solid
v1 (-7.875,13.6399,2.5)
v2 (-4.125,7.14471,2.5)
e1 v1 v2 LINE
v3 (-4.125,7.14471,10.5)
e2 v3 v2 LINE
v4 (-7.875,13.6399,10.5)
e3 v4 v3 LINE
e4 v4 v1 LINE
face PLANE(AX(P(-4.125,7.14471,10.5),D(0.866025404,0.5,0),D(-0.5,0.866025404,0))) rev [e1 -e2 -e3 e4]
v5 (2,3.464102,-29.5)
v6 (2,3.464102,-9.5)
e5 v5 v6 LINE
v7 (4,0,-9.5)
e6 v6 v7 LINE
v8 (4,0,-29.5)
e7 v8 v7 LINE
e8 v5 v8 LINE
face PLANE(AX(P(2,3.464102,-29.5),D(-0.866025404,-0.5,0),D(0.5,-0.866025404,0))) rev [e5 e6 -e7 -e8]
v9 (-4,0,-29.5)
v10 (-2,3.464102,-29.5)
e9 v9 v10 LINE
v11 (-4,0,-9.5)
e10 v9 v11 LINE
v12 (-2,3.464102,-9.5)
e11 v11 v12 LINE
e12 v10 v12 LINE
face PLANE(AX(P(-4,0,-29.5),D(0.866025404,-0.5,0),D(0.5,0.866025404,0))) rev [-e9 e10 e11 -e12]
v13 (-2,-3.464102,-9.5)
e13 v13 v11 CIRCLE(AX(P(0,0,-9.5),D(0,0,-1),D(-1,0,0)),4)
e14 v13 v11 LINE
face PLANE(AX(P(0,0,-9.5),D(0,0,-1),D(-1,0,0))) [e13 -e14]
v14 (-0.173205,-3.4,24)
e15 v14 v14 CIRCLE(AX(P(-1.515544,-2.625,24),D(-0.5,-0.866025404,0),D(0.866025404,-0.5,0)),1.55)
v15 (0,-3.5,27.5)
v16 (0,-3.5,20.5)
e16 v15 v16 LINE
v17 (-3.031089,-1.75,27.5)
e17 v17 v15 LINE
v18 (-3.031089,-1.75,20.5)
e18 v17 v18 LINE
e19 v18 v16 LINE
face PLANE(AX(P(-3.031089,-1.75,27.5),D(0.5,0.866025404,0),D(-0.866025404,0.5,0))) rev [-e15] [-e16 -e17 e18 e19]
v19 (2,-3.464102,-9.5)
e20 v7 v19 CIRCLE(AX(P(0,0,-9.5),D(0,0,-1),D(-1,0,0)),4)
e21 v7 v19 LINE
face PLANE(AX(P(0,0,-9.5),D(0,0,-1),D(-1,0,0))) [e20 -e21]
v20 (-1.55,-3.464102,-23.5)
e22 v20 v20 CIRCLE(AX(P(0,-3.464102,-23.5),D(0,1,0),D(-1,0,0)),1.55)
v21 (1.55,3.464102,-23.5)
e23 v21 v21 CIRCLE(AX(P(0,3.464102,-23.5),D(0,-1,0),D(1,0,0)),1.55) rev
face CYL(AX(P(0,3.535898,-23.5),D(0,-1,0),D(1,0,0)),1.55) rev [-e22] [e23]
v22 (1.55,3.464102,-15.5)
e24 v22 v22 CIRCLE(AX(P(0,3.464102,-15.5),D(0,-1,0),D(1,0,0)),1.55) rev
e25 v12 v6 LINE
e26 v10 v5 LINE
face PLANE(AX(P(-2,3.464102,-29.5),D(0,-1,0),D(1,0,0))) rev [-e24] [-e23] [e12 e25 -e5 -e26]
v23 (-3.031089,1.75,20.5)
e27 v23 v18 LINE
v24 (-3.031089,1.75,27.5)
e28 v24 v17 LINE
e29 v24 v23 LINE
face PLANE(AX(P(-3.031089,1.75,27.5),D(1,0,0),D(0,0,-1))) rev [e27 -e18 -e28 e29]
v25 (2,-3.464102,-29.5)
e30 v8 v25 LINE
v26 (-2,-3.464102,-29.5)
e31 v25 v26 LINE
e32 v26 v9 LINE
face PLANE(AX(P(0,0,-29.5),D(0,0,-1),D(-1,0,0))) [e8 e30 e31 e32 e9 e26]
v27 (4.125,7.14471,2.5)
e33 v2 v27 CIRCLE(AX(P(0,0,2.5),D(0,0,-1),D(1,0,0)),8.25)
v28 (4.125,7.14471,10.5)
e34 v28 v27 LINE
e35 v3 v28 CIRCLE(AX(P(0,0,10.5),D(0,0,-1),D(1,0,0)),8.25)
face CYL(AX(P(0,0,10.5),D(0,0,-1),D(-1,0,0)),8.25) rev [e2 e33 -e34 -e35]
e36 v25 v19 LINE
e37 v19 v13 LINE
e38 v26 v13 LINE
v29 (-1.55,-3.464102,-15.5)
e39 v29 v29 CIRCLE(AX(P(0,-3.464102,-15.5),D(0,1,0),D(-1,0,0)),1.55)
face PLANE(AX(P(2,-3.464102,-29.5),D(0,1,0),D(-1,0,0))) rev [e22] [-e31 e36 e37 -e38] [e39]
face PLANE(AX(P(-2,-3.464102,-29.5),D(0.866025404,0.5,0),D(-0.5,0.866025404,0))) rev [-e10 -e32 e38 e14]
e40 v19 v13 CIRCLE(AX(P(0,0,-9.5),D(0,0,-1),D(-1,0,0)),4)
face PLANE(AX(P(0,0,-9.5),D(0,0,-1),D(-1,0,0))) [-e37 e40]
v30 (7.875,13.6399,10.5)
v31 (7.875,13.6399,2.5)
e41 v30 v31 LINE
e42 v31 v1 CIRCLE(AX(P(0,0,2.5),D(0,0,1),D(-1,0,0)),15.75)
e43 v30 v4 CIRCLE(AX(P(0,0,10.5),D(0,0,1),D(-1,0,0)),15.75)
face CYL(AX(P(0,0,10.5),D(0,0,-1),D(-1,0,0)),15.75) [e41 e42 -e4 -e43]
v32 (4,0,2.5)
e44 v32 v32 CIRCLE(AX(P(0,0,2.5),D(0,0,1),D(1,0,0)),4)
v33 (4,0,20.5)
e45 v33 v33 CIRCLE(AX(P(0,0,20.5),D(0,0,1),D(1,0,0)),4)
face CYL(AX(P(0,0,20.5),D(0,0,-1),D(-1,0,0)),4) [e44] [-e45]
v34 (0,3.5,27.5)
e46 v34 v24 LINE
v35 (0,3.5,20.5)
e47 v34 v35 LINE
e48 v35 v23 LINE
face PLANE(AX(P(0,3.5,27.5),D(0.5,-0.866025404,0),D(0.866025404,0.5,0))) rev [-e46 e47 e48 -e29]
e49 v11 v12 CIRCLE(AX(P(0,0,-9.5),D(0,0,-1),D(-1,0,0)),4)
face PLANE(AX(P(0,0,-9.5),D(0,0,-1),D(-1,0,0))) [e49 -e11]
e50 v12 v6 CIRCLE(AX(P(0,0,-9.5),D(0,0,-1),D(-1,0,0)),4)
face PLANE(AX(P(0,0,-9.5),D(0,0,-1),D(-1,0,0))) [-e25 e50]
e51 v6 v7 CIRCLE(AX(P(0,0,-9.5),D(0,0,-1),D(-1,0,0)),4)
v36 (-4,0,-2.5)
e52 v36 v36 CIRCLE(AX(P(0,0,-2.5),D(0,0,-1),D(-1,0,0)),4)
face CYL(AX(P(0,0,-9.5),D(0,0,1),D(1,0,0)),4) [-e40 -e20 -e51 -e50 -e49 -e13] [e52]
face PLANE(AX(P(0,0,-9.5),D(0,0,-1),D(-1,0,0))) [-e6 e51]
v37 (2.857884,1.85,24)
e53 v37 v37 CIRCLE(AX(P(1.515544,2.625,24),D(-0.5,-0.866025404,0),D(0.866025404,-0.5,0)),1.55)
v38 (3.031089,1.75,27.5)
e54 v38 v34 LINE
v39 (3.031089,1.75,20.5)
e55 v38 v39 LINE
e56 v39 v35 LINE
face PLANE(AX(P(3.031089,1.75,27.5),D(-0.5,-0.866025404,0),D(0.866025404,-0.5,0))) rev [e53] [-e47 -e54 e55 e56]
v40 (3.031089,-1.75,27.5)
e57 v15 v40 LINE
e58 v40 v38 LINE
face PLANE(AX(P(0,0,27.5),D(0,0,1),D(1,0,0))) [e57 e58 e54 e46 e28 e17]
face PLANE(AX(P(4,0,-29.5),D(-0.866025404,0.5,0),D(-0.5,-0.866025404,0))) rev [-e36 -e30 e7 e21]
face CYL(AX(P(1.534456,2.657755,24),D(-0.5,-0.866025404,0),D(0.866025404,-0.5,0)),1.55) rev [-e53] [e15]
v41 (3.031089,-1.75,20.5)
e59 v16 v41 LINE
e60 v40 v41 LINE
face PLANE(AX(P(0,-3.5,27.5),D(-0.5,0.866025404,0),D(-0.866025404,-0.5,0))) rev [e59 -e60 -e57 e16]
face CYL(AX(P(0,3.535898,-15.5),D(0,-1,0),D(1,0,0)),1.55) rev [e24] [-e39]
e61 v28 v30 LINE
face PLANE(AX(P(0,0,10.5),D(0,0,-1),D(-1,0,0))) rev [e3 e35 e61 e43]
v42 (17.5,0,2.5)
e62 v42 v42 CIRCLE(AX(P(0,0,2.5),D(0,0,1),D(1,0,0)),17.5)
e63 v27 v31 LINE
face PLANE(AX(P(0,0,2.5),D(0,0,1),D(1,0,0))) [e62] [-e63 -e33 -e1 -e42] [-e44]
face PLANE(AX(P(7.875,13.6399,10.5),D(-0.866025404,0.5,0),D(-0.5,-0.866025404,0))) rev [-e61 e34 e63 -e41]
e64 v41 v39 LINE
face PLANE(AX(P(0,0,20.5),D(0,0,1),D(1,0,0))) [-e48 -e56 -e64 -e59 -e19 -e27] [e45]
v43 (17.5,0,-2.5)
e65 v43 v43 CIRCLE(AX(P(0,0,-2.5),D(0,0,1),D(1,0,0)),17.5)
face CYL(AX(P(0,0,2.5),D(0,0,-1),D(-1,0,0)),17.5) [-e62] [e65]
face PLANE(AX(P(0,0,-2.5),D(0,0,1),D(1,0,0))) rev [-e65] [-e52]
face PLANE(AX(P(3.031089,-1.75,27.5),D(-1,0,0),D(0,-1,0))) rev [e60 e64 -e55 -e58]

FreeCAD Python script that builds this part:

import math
import FreeCAD as App
import Part
import Sketcher
Q = App.Units.Quantity

doc = App.newDocument("Part")
body = doc.addObject("PartDesign::Body", "Body")

sketch1 = body.newObject("Sketcher::SketchObject", "Sketch")
sketch1.AttachmentSupport = (doc.getObject("XY_Plane"), [""])
sketch1.MapMode = "FlatFace"
sketch1.addGeometry(Part.Circle(App.Vector(0, 0, 0), App.Vector(0, 0, 1), 18), False)
sketch1.addConstraint([
    Sketcher.Constraint("Coincident", 0, 3, -1, 1),
    Sketcher.Constraint("Diameter", 0, Q("35 mm")),
])
pad1 = body.newObject("PartDesign::Pad", "Pad")
pad1.Profile = sketch1
pad1.Length = 5
pad1.Midplane = True

sketch2 = body.newObject("Sketcher::SketchObject", "Sketch001")
sketch2.AttachmentSupport = (doc.getObject("XY_Plane"), [""])
sketch2.MapMode = "FlatFace"
sketch2.AttachmentOffset = App.Placement(App.Vector(0, 0, 2.5), App.Rotation())
sketch2.addGeometry([
    Part.LineSegment(App.Vector(4, 7, 0), App.Vector(8, 14, 0)),
    Part.ArcOfCircle(Part.Circle(App.Vector(0, 0, 0), App.Vector(0, 0, 1), 16), math.radians(60), math.radians(120)),
    Part.LineSegment(App.Vector(-8, 14, 0), App.Vector(-4, 7, 0)),
    Part.ArcOfCircle(Part.Circle(App.Vector(0, 0, 0), App.Vector(0, 0, 1), 8), math.radians(60), math.radians(120)),
], False)
sketch2.addConstraint([
    Sketcher.Constraint("Coincident", 0, 2, 1, 1),
    Sketcher.Constraint("Coincident", 1, 2, 2, 1),
    Sketcher.Constraint("Coincident", 2, 2, 3, 2),
    Sketcher.Constraint("Coincident", 3, 1, 0, 1),
    Sketcher.Constraint("Coincident", 1, 3, -1, 1),
    Sketcher.Constraint("Coincident", 3, 3, -1, 1),
    Sketcher.Constraint("Horizontal", 0, 2, 1, 2),
    Sketcher.Constraint("Horizontal", 2, 2, 3, 1),
    Sketcher.Constraint("Angle", 0, Q("60 deg")),
    Sketcher.Constraint("Radius", 1, Q("15.75 mm")),
    Sketcher.Constraint("Radius", 3, Q("8.25 mm")),
    Sketcher.Constraint("DistanceX", 2, 2, 0, 2, Q("12 mm")),
])
pad2 = body.newObject("PartDesign::Pad", "Pad001")
pad2.Profile = sketch2
pad2.Length = 8

sketch3 = body.newObject("Sketcher::SketchObject", "Sketch002")
sketch3.AttachmentSupport = (doc.getObject("XY_Plane"), [""])
sketch3.MapMode = "FlatFace"
sketch3.AttachmentOffset = App.Placement(App.Vector(0, 0, 2.5), App.Rotation())
sketch3.addGeometry(Part.Circle(App.Vector(0, 0, 0), App.Vector(0, 0, 1), 4), False)
sketch3.addConstraint([
    Sketcher.Constraint("Coincident", 0, 3, -1, 1),
    Sketcher.Constraint("Diameter", 0, Q("8 mm")),
])
pad3 = body.newObject("PartDesign::Pad", "Pad002")
pad3.Profile = sketch3
pad3.Length = 18

sketch4 = body.newObject("Sketcher::SketchObject", "Sketch003")
sketch4.AttachmentSupport = (doc.getObject("XY_Plane"), [""])
sketch4.MapMode = "FlatFace"
sketch4.AttachmentOffset = App.Placement(App.Vector(0, 0, -9.5), App.Rotation())
sketch4.addGeometry(Part.Circle(App.Vector(0, 0, 0), App.Vector(0, 0, 1), 4), False)
sketch4.addConstraint([
    Sketcher.Constraint("Coincident", 0, 3, -1, 1),
    Sketcher.Constraint("Diameter", 0, Q("8 mm")),
])
pad4 = body.newObject("PartDesign::Pad", "Pad003")
pad4.Profile = sketch4
pad4.Length = 7

sketch5 = body.newObject("Sketcher::SketchObject", "Sketch004")
sketch5.AttachmentSupport = (doc.getObject("XY_Plane"), [""])
sketch5.MapMode = "FlatFace"
sketch5.AttachmentOffset = App.Placement(App.Vector(0, 0, -9.5), App.Rotation())
sketch5.addGeometry([
    Part.LineSegment(App.Vector(-4, 0, 0), App.Vector(-2, 3.5, 0)),
    Part.LineSegment(App.Vector(-2, 3.5, 0), App.Vector(2, 3.5, 0)),
    Part.LineSegment(App.Vector(2, 3.5, 0), App.Vector(4, 0, 0)),
    Part.LineSegment(App.Vector(4, 0, 0), App.Vector(2, -3.5, 0)),
    Part.LineSegment(App.Vector(2, -3.5, 0), App.Vector(-2, -3.5, 0)),
    Part.LineSegment(App.Vector(-2, -3.5, 0), App.Vector(-4, 0, 0)),
], False)
sketch5.addConstraint([
    Sketcher.Constraint("Coincident", 0, 2, 1, 1),
    Sketcher.Constraint("Coincident", 1, 2, 2, 1),
    Sketcher.Constraint("Coincident", 2, 2, 3, 1),
    Sketcher.Constraint("Coincident", 3, 2, 4, 1),
    Sketcher.Constraint("Coincident", 4, 2, 5, 1),
    Sketcher.Constraint("Coincident", 5, 2, 0, 1),
    Sketcher.Constraint("Horizontal", 1),
    Sketcher.Constraint("Horizontal", 4),
    Sketcher.Constraint("Symmetric", 0, 2, 3, 2, -1, 1),
    Sketcher.Constraint("Symmetric", 2, 2, 5, 2, -1, 1),
    Sketcher.Constraint("PointOnObject", 2, 2, -1),
    Sketcher.Constraint("Parallel", 2, 5),
    Sketcher.Constraint("Vertical", 1, 2, 3, 2),
    Sketcher.Constraint("DistanceX", 1, 1, 1, 2, Q("4 mm")),
    Sketcher.Constraint("Angle", 0, Q("60 deg")),
    Sketcher.Constraint("Distance", 0, Q("4 mm")),
])
pad5 = body.newObject("PartDesign::Pad", "Pad004")
pad5.Profile = sketch5
pad5.Length = 20
pad5.Reversed = True

sketch6 = body.newObject("Sketcher::SketchObject", "Sketch005")
sketch6.AttachmentSupport = (doc.getObject("XZ_Plane"), [""])
sketch6.MapMode = "FlatFace"
sketch6.AttachmentOffset = App.Placement(App.Vector(0, 0, 3.464102), App.Rotation())
sketch6.addGeometry([
    Part.Circle(App.Vector(0, -23.5, 0), App.Vector(0, 0, 1), 1.6),
    Part.Circle(App.Vector(0, -15.5, 0), App.Vector(0, 0, 1), 1.6),
], False)
sketch6.addConstraint([
    Sketcher.Constraint("Equal", 0, 1),
    Sketcher.Constraint("PointOnObject", 0, 3, -2),
    Sketcher.Constraint("PointOnObject", 1, 3, -2),
    Sketcher.Constraint("Diameter", 0, Q("3.1 mm")),
    Sketcher.Constraint("DistanceY", 0, 3, 1, 3, Q("8 mm")),
    Sketcher.Constraint("DistanceY", 0, 3, -1, 1, Q("23.5 mm")),
])
pocket1 = body.newObject("PartDesign::Pocket", "Pocket")
pocket1.Profile = sketch6
pocket1.Length = 7

sketch7 = body.newObject("Sketcher::SketchObject", "Sketch006")
sketch7.AttachmentSupport = (doc.getObject("XY_Plane"), [""])
sketch7.MapMode = "FlatFace"
sketch7.AttachmentOffset = App.Placement(App.Vector(0, 0, 20.5), App.Rotation())
sketch7.addGeometry([
    Part.LineSegment(App.Vector(3, 1.8, 0), App.Vector(0, 3.5, 0)),
    Part.LineSegment(App.Vector(0, 3.5, 0), App.Vector(-3, 1.8, 0)),
    Part.LineSegment(App.Vector(-3, 1.8, 0), App.Vector(-3, -1.8, 0)),
    Part.LineSegment(App.Vector(-3, -1.8, 0), App.Vector(0, -3.5, 0)),
    Part.LineSegment(App.Vector(0, -3.5, 0), App.Vector(3, -1.8, 0)),
    Part.LineSegment(App.Vector(3, -1.8, 0), App.Vector(3, 1.8, 0)),
], False)
sketch7.addConstraint([
    Sketcher.Constraint("Coincident", 0, 2, 1, 1),
    Sketcher.Constraint("Coincident", 1, 2, 2, 1),
    Sketcher.Constraint("Coincident", 2, 2, 3, 1),
    Sketcher.Constraint("Coincident", 3, 2, 4, 1),
    Sketcher.Constraint("Coincident", 4, 2, 5, 1),
    Sketcher.Constraint("Coincident", 5, 2, 0, 1),
    Sketcher.Constraint("Vertical", 2),
    Sketcher.Constraint("Vertical", 5),
    Sketcher.Constraint("Symmetric", 0, 2, 3, 2, -1, 1),
    Sketcher.Constraint("Symmetric", 1, 2, 4, 2, -1, 1),
    Sketcher.Constraint("PointOnObject", 0, 2, -2),
    Sketcher.Constraint("Parallel", 0, 3),
    Sketcher.Constraint("Horizontal", 2, 2, 4, 2),
    Sketcher.Constraint("Angle", 0, Q("150 deg")),
    Sketcher.Constraint("DistanceY", 2, 2, 2, 1, Q("3.5 mm")),
    Sketcher.Constraint("DistanceY", 3, 2, 0, 2, Q("7 mm")),
])
pad6 = body.newObject("PartDesign::Pad", "Pad005")
pad6.Profile = sketch7
pad6.Length = 7

sketch8 = body.newObject("Sketcher::SketchObject", "Sketch007")
sketch8.Placement = App.Placement(App.Vector(-1.515544, -2.625, 0), App.Rotation(App.Vector(0.866025404, -0.5, 0), App.Vector(0, 0, 1), App.Vector(-0.5, -0.866025404, 0), "ZXY"))
sketch8.addGeometry(Part.Circle(App.Vector(0, 24, 0), App.Vector(0, 0, 1), 1.6), False)
sketch8.addConstraint([
    Sketcher.Constraint("PointOnObject", 0, 3, -2),
    Sketcher.Constraint("Diameter", 0, Q("3.1 mm")),
    Sketcher.Constraint("DistanceY", -1, 1, 0, 3, Q("24 mm")),
])
pocket2 = body.newObject("PartDesign::Pocket", "Pocket001")
pocket2.Profile = sketch8
pocket2.Length = 6.1

doc.recompute()
